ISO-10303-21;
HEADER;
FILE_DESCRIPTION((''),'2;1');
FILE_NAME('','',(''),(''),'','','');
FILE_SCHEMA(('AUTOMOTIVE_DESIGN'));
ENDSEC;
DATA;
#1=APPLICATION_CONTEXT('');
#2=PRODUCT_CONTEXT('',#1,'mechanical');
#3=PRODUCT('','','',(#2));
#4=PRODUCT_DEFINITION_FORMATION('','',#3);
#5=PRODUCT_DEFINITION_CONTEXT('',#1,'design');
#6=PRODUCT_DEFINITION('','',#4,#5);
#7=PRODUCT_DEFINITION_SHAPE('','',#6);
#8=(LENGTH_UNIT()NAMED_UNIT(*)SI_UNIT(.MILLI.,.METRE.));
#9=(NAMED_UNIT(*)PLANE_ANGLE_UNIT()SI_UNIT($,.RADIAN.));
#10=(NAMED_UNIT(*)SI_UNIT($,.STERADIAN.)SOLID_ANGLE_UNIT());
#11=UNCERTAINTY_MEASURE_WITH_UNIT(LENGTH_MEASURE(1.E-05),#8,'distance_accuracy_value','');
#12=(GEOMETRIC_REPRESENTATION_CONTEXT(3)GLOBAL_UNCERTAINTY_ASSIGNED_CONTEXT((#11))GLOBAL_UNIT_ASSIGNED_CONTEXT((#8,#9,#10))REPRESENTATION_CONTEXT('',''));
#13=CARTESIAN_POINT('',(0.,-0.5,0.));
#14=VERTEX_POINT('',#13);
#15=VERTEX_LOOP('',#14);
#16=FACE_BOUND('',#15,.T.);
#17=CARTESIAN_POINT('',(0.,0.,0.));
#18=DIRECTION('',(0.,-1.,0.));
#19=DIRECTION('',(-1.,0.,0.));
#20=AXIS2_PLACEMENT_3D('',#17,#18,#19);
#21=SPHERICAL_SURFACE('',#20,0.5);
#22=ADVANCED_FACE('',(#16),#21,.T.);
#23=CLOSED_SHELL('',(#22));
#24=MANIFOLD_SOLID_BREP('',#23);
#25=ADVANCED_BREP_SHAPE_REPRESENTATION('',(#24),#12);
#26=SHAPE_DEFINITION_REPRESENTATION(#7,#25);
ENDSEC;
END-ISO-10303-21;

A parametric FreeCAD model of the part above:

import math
import FreeCAD as App
import Part
import Sketcher
from FreeCAD import Vector

doc = App.newDocument("Part")
body = doc.addObject("PartDesign::Body", "Body")

sketch1 = doc.addObject("Sketcher::SketchObject", "Sketch")
body.addObject(sketch1)
sketch1.AttachmentSupport = (doc.XY_Plane, [""])
sketch1.MapMode = "FlatFace"
sketch1.addGeometry([
    Part.LineSegment(Vector(0, -0.5, 0), Vector(0, 0.5, 0)),
    Part.ArcOfCircle(Part.Circle(Vector(0, 0, 0), Vector(0, 0, 1), 0.5), math.radians(90), math.radians(270)),
], False)
sketch1.addConstraint([
    Sketcher.Constraint("Coincident", 0, 1, 1, 2),
    Sketcher.Constraint("Coincident", 1, 1, 0, 2),
    Sketcher.Constraint("Vertical", 0),
    Sketcher.Constraint("Coincident", 1, 3, -1, 1),
    Sketcher.Constraint("PointOnObject", 0, 1, -2),
    Sketcher.Constraint("Radius", 1, 0.5),
])
revolution = doc.addObject("PartDesign::Revolution", "Revolution")
body.addObject(revolution)
revolution.Profile = sketch1
revolution.ReferenceAxis = (sketch1, ["V_Axis"])
revolution.Angle = 360

doc.recompute()
